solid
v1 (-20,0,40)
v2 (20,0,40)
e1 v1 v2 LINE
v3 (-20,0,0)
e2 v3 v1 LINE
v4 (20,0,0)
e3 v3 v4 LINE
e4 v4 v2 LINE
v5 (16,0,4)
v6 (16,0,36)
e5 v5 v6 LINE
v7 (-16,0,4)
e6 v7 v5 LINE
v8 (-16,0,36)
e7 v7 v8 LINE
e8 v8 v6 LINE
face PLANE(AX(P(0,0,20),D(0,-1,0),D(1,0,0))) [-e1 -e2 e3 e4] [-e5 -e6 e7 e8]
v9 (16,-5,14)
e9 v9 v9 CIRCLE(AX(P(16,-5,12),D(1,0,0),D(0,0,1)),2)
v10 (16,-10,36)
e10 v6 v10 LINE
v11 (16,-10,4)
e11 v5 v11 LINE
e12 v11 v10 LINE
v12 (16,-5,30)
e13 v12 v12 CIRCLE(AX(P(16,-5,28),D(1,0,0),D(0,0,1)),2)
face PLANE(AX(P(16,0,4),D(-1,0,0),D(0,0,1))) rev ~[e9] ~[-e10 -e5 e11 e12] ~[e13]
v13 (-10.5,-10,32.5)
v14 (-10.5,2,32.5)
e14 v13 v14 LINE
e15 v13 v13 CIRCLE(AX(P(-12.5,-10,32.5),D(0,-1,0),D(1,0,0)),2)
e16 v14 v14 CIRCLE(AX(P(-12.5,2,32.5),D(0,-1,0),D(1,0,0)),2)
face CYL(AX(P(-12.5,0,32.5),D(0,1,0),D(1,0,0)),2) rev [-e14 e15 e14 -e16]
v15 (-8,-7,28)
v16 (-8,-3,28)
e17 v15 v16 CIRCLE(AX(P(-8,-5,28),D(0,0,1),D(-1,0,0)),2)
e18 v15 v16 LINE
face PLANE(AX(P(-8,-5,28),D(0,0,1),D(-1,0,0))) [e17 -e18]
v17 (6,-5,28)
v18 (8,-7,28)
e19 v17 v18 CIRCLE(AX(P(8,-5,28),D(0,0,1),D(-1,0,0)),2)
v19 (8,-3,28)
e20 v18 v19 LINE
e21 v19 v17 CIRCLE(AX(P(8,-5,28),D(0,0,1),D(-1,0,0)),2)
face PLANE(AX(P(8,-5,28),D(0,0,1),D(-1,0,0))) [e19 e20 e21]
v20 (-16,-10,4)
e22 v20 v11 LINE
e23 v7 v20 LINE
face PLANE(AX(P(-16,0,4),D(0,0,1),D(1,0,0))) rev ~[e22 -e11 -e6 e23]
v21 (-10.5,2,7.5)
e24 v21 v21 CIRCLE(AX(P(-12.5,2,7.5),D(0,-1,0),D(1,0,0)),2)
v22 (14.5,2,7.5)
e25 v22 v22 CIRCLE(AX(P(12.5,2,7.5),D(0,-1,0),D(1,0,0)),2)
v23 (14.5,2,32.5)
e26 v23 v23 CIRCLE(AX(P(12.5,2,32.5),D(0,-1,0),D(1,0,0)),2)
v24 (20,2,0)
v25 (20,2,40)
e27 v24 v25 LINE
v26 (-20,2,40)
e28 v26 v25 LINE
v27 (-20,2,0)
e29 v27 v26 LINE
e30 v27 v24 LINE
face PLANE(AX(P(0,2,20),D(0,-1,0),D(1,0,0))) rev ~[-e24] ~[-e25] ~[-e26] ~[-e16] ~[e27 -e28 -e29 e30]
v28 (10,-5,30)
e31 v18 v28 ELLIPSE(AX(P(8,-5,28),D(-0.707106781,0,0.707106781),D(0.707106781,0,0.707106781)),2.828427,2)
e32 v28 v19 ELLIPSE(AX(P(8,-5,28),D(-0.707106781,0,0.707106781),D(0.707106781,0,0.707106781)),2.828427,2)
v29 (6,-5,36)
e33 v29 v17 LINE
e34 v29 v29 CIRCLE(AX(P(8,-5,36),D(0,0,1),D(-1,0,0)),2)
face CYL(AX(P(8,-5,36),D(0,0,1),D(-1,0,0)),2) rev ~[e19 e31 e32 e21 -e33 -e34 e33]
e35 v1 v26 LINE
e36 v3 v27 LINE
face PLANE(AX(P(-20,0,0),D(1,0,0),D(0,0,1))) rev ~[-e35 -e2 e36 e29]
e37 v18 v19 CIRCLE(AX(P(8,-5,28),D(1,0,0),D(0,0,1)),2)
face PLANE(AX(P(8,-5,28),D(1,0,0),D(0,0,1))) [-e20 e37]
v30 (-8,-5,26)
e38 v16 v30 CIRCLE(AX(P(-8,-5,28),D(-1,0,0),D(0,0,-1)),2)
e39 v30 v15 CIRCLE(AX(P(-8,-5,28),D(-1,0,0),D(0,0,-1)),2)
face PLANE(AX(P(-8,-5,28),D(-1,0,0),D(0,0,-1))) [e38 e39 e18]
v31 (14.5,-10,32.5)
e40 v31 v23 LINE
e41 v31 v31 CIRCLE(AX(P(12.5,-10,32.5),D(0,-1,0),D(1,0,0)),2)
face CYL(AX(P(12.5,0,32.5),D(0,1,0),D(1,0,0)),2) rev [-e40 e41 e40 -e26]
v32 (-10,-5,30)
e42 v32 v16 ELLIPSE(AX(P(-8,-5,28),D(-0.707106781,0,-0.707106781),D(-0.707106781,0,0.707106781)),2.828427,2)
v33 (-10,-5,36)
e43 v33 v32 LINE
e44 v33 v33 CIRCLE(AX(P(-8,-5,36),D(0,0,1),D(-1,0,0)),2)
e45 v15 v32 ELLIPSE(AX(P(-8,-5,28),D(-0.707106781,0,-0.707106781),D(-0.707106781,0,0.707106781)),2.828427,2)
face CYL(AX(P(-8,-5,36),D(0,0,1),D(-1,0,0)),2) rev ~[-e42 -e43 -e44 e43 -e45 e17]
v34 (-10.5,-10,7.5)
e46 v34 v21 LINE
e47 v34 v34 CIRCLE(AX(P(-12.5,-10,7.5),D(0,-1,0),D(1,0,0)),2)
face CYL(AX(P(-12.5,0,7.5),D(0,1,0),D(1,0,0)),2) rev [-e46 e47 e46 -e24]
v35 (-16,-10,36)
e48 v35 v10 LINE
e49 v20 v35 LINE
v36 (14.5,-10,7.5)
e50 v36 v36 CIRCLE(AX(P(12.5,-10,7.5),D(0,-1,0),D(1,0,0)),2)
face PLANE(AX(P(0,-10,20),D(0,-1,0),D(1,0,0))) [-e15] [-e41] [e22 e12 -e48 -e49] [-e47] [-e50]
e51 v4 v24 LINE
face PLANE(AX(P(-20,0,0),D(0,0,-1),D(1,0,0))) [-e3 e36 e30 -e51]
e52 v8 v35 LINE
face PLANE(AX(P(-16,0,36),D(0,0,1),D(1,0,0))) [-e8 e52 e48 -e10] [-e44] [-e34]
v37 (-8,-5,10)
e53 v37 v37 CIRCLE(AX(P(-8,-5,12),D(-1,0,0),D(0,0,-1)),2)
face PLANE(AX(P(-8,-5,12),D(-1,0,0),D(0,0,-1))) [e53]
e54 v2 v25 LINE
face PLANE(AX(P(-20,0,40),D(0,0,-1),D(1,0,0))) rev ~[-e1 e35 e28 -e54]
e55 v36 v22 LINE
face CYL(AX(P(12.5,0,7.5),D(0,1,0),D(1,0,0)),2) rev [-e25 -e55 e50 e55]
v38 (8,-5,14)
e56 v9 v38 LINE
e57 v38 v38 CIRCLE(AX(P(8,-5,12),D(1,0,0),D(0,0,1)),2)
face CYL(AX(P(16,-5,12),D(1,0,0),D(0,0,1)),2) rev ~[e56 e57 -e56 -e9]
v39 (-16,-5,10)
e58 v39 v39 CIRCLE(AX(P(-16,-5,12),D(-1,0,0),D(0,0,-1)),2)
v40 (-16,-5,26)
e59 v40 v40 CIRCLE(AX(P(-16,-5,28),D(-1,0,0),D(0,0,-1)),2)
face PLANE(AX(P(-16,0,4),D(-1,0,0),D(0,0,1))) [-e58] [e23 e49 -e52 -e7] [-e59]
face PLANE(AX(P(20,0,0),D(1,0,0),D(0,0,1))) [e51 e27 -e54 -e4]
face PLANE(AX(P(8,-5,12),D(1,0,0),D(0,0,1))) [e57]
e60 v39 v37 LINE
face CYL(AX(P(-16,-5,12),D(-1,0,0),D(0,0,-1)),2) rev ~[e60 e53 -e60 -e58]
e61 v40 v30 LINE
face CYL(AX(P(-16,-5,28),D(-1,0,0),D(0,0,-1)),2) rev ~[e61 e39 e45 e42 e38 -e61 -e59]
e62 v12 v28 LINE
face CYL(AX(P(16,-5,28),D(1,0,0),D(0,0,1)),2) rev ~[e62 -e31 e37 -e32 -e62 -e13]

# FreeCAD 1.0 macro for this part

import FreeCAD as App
import Part
import Sketcher
from FreeCAD import Vector


def add_polygon(sketch, points):
    """Adds a closed chain of lines whose ends are joined by coincident constraints."""
    first, n = sketch.GeometryCount, len(points)
    for a, b in zip(points, points[1:] + points[:1]):
        sketch.addGeometry(Part.LineSegment(App.Vector(*a, 0), App.Vector(*b, 0)), False)
    for i in range(n):
        sketch.addConstraint(Sketcher.Constraint("Coincident", first + i, 2, first + (i + 1) % n, 1))

doc = App.newDocument("Part")
body = doc.addObject("PartDesign::Body", "Body")

# Sketch on XZ plane
sketch1 = doc.addObject("Sketcher::SketchObject", "Sketch")
body.addObject(sketch1)
sketch1.AttachmentSupport = (doc.XZ_Plane, [""])
sketch1.MapMode = "FlatFace"
add_polygon(sketch1, [(-20, 40), (-20, 0), (20, 0), (20, 40)])  # lines 0-3
sketch1.addGeometry(Part.Circle(Vector(-12.5, 7.5, 0), Vector(0, 0, 1), 2), False)  # 4
sketch1.addGeometry(Part.Circle(Vector(12.5, 7.5, 0), Vector(0, 0, 1), 2), False)  # 5
sketch1.addGeometry(Part.Circle(Vector(-12.5, 32.5, 0), Vector(0, 0, 1), 2), False)  # 6
sketch1.addGeometry(Part.Circle(Vector(12.5, 32.5, 0), Vector(0, 0, 1), 2), False)  # 7
sketch1.addConstraint([
    Sketcher.Constraint("Vertical", 0),
    Sketcher.Constraint("Horizontal", 1),
    Sketcher.Constraint("Vertical", 2),
    Sketcher.Constraint("Horizontal", 3),
    Sketcher.Constraint("Equal", 4, 5),
    Sketcher.Constraint("Equal", 5, 6),
    Sketcher.Constraint("Equal", 6, 7),
    Sketcher.Constraint("Symmetric", 0, 2, 1, 2, -1, 1),
    Sketcher.Constraint("Symmetric", 4, 3, 5, 3, -2),
    Sketcher.Constraint("Symmetric", 6, 3, 7, 3, -2),
    Sketcher.Constraint("Vertical", 4, 3, 6, 3),
    Sketcher.Constraint("Equal", 3, 0),
    Sketcher.Constraint("Diameter", 4, 4.0),
    Sketcher.Constraint("DistanceX", 1, 1, 1, 2, 40.0),
    Sketcher.Constraint("DistanceX", 4, 3, 5, 3, 25.0),
    Sketcher.Constraint("DistanceY", 4, 3, 6, 3, 25.0),
    Sketcher.Constraint("DistanceY", -1, 1, 4, 3, 7.5),
])
pad1 = doc.addObject("PartDesign::Pad", "Pad")
body.addObject(pad1)
pad1.Profile = sketch1
pad1.Length = 2
pad1.Reversed = True

# Sketch on XZ plane
sketch2 = doc.addObject("Sketcher::SketchObject", "Sketch001")
body.addObject(sketch2)
sketch2.AttachmentSupport = (doc.XZ_Plane, [""])
sketch2.MapMode = "FlatFace"
add_polygon(sketch2, [(-16, 36), (-16, 4), (16, 4), (16, 36)])  # lines 0-3
sketch2.addGeometry(Part.Circle(Vector(-12.5, 7.5, 0), Vector(0, 0, 1), 2), False)  # 4
sketch2.addGeometry(Part.Circle(Vector(12.5, 7.5, 0), Vector(0, 0, 1), 2), False)  # 5
sketch2.addGeometry(Part.Circle(Vector(-12.5, 32.5, 0), Vector(0, 0, 1), 2), False)  # 6
sketch2.addGeometry(Part.Circle(Vector(12.5, 32.5, 0), Vector(0, 0, 1), 2), False)  # 7
sketch2.addConstraint([
    Sketcher.Constraint("Vertical", 0),
    Sketcher.Constraint("Horizontal", 1),
    Sketcher.Constraint("Vertical", 2),
    Sketcher.Constraint("Horizontal", 3),
    Sketcher.Constraint("Equal", 4, 5),
    Sketcher.Constraint("Equal", 5, 6),
    Sketcher.Constraint("Equal", 6, 7),
    Sketcher.Constraint("Symmetric", 4, 3, 5, 3, -2),
    Sketcher.Constraint("Symmetric", 6, 3, 7, 3, -2),
    Sketcher.Constraint("Vertical", 4, 3, 6, 3),
    Sketcher.Constraint("Equal", 3, 0),
    Sketcher.Constraint("Diameter", 4, 4.0),
    Sketcher.Constraint("DistanceX", 1, 1, 1, 2, 32.0),
    Sketcher.Constraint("DistanceX", 0, 2, -1, 1, 16.0),
    Sketcher.Constraint("DistanceY", -1, 1, 0, 2, 4.0),
    Sketcher.Constraint("DistanceX", 4, 3, 5, 3, 25.0),
    Sketcher.Constraint("DistanceY", 4, 3, 6, 3, 25.0),
    Sketcher.Constraint("DistanceY", -1, 1, 4, 3, 7.5),
])
pad2 = doc.addObject("PartDesign::Pad", "Pad001")
body.addObject(pad2)
pad2.Profile = sketch2
pad2.Length = 10

# Sketch on YZ plane
sketch3 = doc.addObject("Sketcher::SketchObject", "Sketch002")
body.addObject(sketch3)
sketch3.AttachmentSupport = (doc.YZ_Plane, [""])
sketch3.MapMode = "FlatFace"
sketch3.AttachmentOffset = App.Placement(Vector(0, 0, -16), App.Rotation())
sketch3.addGeometry([
    Part.Circle(Vector(-5, 28, 0), Vector(0, 0, 1), 2),
    Part.Circle(Vector(-5, 12, 0), Vector(0, 0, 1), 2),
], False)
sketch3.addConstraint([
    Sketcher.Constraint("Equal", 0, 1),
    Sketcher.Constraint("Vertical", 0, 3, 1, 3),
    Sketcher.Constraint("Diameter", 0, 4.0),
    Sketcher.Constraint("DistanceX", 0, 3, -1, 1, 5.0),
    Sketcher.Constraint("DistanceY", -1, 1, 0, 3, 28.0),
    Sketcher.Constraint("DistanceY", -1, 1, 1, 3, 12.0),
])
pocket1 = doc.addObject("PartDesign::Pocket", "Pocket")
body.addObject(pocket1)
pocket1.Profile = sketch3
pocket1.Length = 8
pocket1.Reversed = True

# Sketch on XY plane
sketch4 = doc.addObject("Sketcher::SketchObject", "Sketch003")
body.addObject(sketch4)
sketch4.AttachmentSupport = (doc.XY_Plane, [""])
sketch4.MapMode = "FlatFace"
sketch4.AttachmentOffset = App.Placement(Vector(0, 0, 36), App.Rotation())
sketch4.addGeometry([
    Part.Circle(Vector(8, -5, 0), Vector(0, 0, 1), 2),
    Part.Circle(Vector(-8, -5, 0), Vector(0, 0, 1), 2),
], False)
sketch4.addConstraint([
    Sketcher.Constraint("Equal", 0, 1),
    Sketcher.Constraint("Symmetric", 0, 3, 1, 3, -2),
    Sketcher.Constraint("Diameter", 0, 4.0),
    Sketcher.Constraint("DistanceX", -1, 1, 0, 3, 8.0),
    Sketcher.Constraint("DistanceY", 0, 3, -1, 1, 5.0),
])
pocket2 = doc.addObject("PartDesign::Pocket", "Pocket001")
body.addObject(pocket2)
pocket2.Profile = sketch4
pocket2.Length = 8

# Sketch on YZ plane
sketch5 = doc.addObject("Sketcher::SketchObject", "Sketch004")
body.addObject(sketch5)
sketch5.AttachmentSupport = (doc.YZ_Plane, [""])
sketch5.MapMode = "FlatFace"
sketch5.AttachmentOffset = App.Placement(Vector(0, 0, 16), App.Rotation())
sketch5.addGeometry([
    Part.Circle(Vector(-5, 12, 0), Vector(0, 0, 1), 2),
    Part.Circle(Vector(-5, 28, 0), Vector(0, 0, 1), 2),
], False)
sketch5.addConstraint([
    Sketcher.Constraint("Equal", 0, 1),
    Sketcher.Constraint("Vertical", 0, 3, 1, 3),
    Sketcher.Constraint("Diameter", 0, 4.0),
    Sketcher.Constraint("DistanceX", 0, 3, -1, 1, 5.0),
    Sketcher.Constraint("DistanceY", -1, 1, 0, 3, 12.0),
    Sketcher.Constraint("DistanceY", -1, 1, 1, 3, 28.0),
])
pocket3 = doc.addObject("PartDesign::Pocket", "Pocket002")
body.addObject(pocket3)
pocket3.Profile = sketch5
pocket3.Length = 8

doc.recompute()
